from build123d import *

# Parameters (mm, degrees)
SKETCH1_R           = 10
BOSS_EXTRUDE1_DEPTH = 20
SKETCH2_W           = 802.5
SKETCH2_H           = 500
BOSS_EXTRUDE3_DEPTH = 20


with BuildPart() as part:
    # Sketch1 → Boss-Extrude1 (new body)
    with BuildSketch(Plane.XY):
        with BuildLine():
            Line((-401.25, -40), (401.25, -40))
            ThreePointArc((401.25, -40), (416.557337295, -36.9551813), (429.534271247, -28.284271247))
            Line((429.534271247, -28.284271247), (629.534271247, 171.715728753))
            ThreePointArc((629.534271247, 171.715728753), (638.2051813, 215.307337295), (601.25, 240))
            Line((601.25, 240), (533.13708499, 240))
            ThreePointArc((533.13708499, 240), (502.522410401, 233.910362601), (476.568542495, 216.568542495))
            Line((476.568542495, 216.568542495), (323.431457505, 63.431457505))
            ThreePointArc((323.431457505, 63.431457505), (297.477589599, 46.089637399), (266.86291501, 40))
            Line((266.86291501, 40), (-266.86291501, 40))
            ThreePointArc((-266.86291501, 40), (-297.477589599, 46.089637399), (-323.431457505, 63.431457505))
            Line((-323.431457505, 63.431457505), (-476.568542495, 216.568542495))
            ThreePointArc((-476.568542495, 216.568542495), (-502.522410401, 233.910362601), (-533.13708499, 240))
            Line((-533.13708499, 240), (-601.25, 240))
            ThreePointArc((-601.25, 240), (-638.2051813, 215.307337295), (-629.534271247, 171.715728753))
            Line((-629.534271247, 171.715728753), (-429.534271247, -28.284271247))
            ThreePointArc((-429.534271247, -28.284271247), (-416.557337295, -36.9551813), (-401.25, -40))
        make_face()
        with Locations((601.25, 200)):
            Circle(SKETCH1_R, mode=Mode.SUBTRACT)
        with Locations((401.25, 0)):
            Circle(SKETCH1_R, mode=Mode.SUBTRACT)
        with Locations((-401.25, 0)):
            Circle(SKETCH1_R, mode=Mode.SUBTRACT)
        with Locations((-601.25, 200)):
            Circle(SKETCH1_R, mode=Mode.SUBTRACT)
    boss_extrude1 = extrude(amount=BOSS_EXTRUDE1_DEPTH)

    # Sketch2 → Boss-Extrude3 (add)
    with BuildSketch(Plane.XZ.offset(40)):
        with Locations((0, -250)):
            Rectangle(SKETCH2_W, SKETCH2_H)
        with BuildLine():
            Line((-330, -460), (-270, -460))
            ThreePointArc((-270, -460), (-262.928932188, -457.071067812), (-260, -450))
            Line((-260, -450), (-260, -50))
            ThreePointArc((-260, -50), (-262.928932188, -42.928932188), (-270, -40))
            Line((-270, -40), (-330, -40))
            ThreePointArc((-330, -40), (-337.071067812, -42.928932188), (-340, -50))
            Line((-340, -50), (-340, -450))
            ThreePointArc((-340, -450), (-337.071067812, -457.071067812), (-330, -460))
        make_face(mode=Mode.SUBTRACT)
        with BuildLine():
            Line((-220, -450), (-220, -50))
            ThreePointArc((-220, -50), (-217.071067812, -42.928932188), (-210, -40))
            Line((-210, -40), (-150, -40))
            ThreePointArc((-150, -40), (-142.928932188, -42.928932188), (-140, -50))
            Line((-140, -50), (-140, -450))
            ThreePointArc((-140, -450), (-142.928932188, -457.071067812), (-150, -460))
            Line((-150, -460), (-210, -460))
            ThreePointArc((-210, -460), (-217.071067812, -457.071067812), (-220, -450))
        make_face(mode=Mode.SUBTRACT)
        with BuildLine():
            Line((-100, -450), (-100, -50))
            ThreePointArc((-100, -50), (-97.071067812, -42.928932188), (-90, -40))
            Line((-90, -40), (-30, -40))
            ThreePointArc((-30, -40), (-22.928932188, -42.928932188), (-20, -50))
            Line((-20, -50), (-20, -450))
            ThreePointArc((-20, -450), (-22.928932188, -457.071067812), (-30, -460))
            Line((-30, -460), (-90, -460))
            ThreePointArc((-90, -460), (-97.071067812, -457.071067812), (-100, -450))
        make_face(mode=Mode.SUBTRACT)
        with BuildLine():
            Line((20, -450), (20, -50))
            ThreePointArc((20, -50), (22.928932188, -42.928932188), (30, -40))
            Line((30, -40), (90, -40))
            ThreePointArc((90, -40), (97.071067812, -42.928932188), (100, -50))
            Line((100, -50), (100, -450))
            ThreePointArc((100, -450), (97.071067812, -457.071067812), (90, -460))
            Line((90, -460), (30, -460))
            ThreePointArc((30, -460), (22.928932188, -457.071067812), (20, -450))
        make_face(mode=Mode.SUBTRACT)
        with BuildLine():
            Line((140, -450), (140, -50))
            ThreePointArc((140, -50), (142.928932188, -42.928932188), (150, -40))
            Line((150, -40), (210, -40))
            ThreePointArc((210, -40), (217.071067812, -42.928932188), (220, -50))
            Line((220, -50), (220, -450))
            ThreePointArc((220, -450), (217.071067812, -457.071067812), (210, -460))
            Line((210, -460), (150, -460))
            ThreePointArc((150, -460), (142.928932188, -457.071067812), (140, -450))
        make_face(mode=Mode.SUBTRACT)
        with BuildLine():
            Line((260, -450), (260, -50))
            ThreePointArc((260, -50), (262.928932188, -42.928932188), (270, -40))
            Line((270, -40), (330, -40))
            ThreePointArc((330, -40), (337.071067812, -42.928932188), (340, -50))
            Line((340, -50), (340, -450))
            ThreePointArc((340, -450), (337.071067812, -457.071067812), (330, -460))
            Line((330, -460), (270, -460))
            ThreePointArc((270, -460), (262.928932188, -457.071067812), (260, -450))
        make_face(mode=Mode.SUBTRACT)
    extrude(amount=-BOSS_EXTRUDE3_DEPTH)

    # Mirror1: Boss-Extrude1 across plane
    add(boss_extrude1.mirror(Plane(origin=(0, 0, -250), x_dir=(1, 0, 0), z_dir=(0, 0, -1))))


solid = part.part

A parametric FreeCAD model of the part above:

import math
import FreeCAD as App
import Part
import Sketcher

V = App.Vector
Q = App.Units.Quantity


def add_polygon(sketch, points):
    """Adds a closed chain of lines whose ends are joined by coincident constraints."""
    first, n = sketch.GeometryCount, len(points)
    for a, b in zip(points, points[1:] + points[:1]):
        sketch.addGeometry(Part.LineSegment(App.Vector(*a, 0), App.Vector(*b, 0)), False)
    for i in range(n):
        sketch.addConstraint(Sketcher.Constraint("Coincident", first + i, 2, first + (i + 1) % n, 1))

doc = App.newDocument("Part")
body = doc.addObject("PartDesign::Body", "Body")

# Sketch on XY plane
sketch1 = body.newObject("Sketcher::SketchObject", "Sketch")
sketch1.AttachmentSupport = (doc.getObject("XY_Plane"), [""])
sketch1.MapMode = "FlatFace"
sketch1.addGeometry([
    Part.LineSegment(V(-401, -40, 0), V(401, -40, 0)),  # 0
    Part.ArcOfCircle(Part.Circle(V(401, 0, 0), V(0, 0, 1), 40), math.radians(-90), math.radians(-45)),  # 1
    Part.LineSegment(V(430, -28, 0), V(630, 172, 0)),  # 2
    Part.ArcOfCircle(Part.Circle(V(601, 200, 0), V(0, 0, 1), 40), math.radians(-45), math.radians(90)),  # 3
    Part.LineSegment(V(601, 240, 0), V(533, 240, 0)),  # 4
    Part.ArcOfCircle(Part.Circle(V(533, 160, 0), V(0, 0, 1), 80), math.radians(90), math.radians(135)),  # 5
    Part.LineSegment(V(477, 217, 0), V(323, 63, 0)),  # 6
    Part.ArcOfCircle(Part.Circle(V(267, 120, 0), V(0, 0, 1), 80), math.radians(-90), math.radians(-45)),  # 7
    Part.LineSegment(V(267, 40, 0), V(-267, 40, 0)),  # 8
    Part.ArcOfCircle(Part.Circle(V(-267, 120, 0), V(0, 0, 1), 80), math.radians(-135), math.radians(-90)),  # 9
    Part.LineSegment(V(-323, 63, 0), V(-477, 217, 0)),  # 10
    Part.ArcOfCircle(Part.Circle(V(-533, 160, 0), V(0, 0, 1), 80), math.radians(45), math.radians(90)),  # 11
    Part.LineSegment(V(-533, 240, 0), V(-601, 240, 0)),  # 12
    Part.ArcOfCircle(Part.Circle(V(-601, 200, 0), V(0, 0, 1), 40), math.radians(90), math.radians(225)),  # 13
    Part.LineSegment(V(-630, 172, 0), V(-430, -28, 0)),  # 14
    Part.ArcOfCircle(Part.Circle(V(-401, 0, 0), V(0, 0, 1), 40), math.radians(-135), math.radians(-90)),  # 15
    Part.Circle(V(-401, 0, 0), V(0, 0, 1), 10),  # 16
    Part.Circle(V(401, 0, 0), V(0, 0, 1), 10),  # 17
    Part.Circle(V(-601, 200, 0), V(0, 0, 1), 10),  # 18
    Part.Circle(V(601, 200, 0), V(0, 0, 1), 10),  # 19
], False)
sketch1.addConstraint([
    Sketcher.Constraint("Tangent", 0, 2, 1, 1),
    Sketcher.Constraint("Tangent", 1, 2, 2, 1),
    Sketcher.Constraint("Tangent", 2, 2, 3, 1),
    Sketcher.Constraint("Tangent", 3, 2, 4, 1),
    Sketcher.Constraint("Tangent", 4, 2, 5, 1),
    Sketcher.Constraint("Tangent", 5, 2, 6, 1),
    Sketcher.Constraint("Tangent", 6, 2, 7, 2),
    Sketcher.Constraint("Tangent", 7, 1, 8, 1),
    Sketcher.Constraint("Tangent", 8, 2, 9, 2),
    Sketcher.Constraint("Tangent", 9, 1, 10, 1),
    Sketcher.Constraint("Tangent", 10, 2, 11, 1),
    Sketcher.Constraint("Tangent", 11, 2, 12, 1),
    Sketcher.Constraint("Tangent", 12, 2, 13, 1),
    Sketcher.Constraint("Tangent", 13, 2, 14, 1),
    Sketcher.Constraint("Tangent", 14, 2, 15, 1),
    Sketcher.Constraint("Tangent", 15, 2, 0, 1),
    Sketcher.Constraint("Horizontal", 0),
    Sketcher.Constraint("Horizontal", 4),
    Sketcher.Constraint("Horizontal", 8),
    Sketcher.Constraint("Horizontal", 12),
    Sketcher.Constraint("Coincident", 16, 3, 15, 3),
    Sketcher.Constraint("Coincident", 17, 3, 1, 3),
    Sketcher.Constraint("Coincident", 18, 3, 13, 3),
    Sketcher.Constraint("Coincident", 19, 3, 3, 3),
    Sketcher.Constraint("Equal", 1, 3),
    Sketcher.Constraint("Equal", 5, 7),
    Sketcher.Constraint("Equal", 7, 9),
    Sketcher.Constraint("Equal", 9, 11),
    Sketcher.Constraint("Equal", 3, 13),
    Sketcher.Constraint("Equal", 13, 15),
    Sketcher.Constraint("Equal", 16, 17),
    Sketcher.Constraint("Equal", 17, 18),
    Sketcher.Constraint("Equal", 18, 19),
    Sketcher.Constraint("Symmetric", 1, 3, 15, 3, -1, 1),
    Sketcher.Constraint("Symmetric", 5, 3, 11, 3, -2),
    Sketcher.Constraint("Parallel", 2, 6),
    Sketcher.Constraint("Perpendicular", 6, 10),
    Sketcher.Constraint("Parallel", 10, 14),
    Sketcher.Constraint("Equal", 4, 12),
    Sketcher.Constraint("Diameter", 16, Q("20 mm")),
    Sketcher.Constraint("Radius", 1, Q("40 mm")),
    Sketcher.Constraint("Radius", 5, Q("80 mm")),
    Sketcher.Constraint("DistanceX", 0, 1, 0, 2, Q("802.5 mm")),
    Sketcher.Constraint("DistanceY", -1, 1, 3, 3, Q("200 mm")),
    Sketcher.Constraint("DistanceY", -1, 1, 7, 3, Q("120 mm")),
    Sketcher.Constraint("DistanceX", 9, 3, 5, 3, Q("800 mm")),
])
pad1 = body.newObject("PartDesign::Pad", "Pad")
pad1.Profile = sketch1
pad1.Length = 20

# Sketch on XZ plane
sketch2 = body.newObject("Sketcher::SketchObject", "Sketch001")
sketch2.AttachmentSupport = (doc.getObject("XZ_Plane"), [""])
sketch2.MapMode = "FlatFace"
sketch2.AttachmentOffset = App.Placement(V(0, 0, 40), App.Rotation())
add_polygon(sketch2, [(-401, 0), (-401, -500), (401, -500), (401, 0)])  # lines 0-3
sketch2.addGeometry(Part.LineSegment(V(-270, -460, 0), V(-330, -460, 0)), False)  # 4
sketch2.addGeometry(Part.ArcOfCircle(Part.Circle(V(-330, -450, 0), V(0, 0, 1), 10), math.radians(180), math.radians(270)), False)  # 5
sketch2.addGeometry(Part.LineSegment(V(-340, -450, 0), V(-340, -50, 0)), False)  # 6
sketch2.addGeometry(Part.ArcOfCircle(Part.Circle(V(-330, -50, 0), V(0, 0, 1), 10), math.radians(90), math.radians(180)), False)  # 7
sketch2.addGeometry(Part.LineSegment(V(-330, -40, 0), V(-270, -40, 0)), False)  # 8
sketch2.addGeometry(Part.ArcOfCircle(Part.Circle(V(-270, -50, 0), V(0, 0, 1), 10), math.radians(0), math.radians(90)), False)  # 9
sketch2.addGeometry(Part.LineSegment(V(-260, -50, 0), V(-260, -450, 0)), False)  # 10
sketch2.addGeometry(Part.ArcOfCircle(Part.Circle(V(-270, -450, 0), V(0, 0, 1), 10), math.radians(-90), math.radians(0)), False)  # 11
sketch2.addGeometry(Part.ArcOfCircle(Part.Circle(V(-210, -450, 0), V(0, 0, 1), 10), math.radians(180), math.radians(270)), False)  # 12
sketch2.addGeometry(Part.LineSegment(V(-220, -450, 0), V(-220, -50, 0)), False)  # 13
sketch2.addGeometry(Part.ArcOfCircle(Part.Circle(V(-210, -50, 0), V(0, 0, 1), 10), math.radians(90), math.radians(180)), False)  # 14
sketch2.addGeometry(Part.LineSegment(V(-210, -40, 0), V(-150, -40, 0)), False)  # 15
sketch2.addGeometry(Part.ArcOfCircle(Part.Circle(V(-150, -50, 0), V(0, 0, 1), 10), math.radians(0), math.radians(90)), False)  # 16
sketch2.addGeometry(Part.LineSegment(V(-140, -50, 0), V(-140, -450, 0)), False)  # 17
sketch2.addGeometry(Part.ArcOfCircle(Part.Circle(V(-150, -450, 0), V(0, 0, 1), 10), math.radians(-90), math.radians(0)), False)  # 18
sketch2.addGeometry(Part.LineSegment(V(-150, -460, 0), V(-210, -460, 0)), False)  # 19
sketch2.addGeometry(Part.ArcOfCircle(Part.Circle(V(-90, -450, 0), V(0, 0, 1), 10), math.radians(180), math.radians(270)), False)  # 20
sketch2.addGeometry(Part.LineSegment(V(-100, -450, 0), V(-100, -50, 0)), False)  # 21
sketch2.addGeometry(Part.ArcOfCircle(Part.Circle(V(-90, -50, 0), V(0, 0, 1), 10), math.radians(90), math.radians(180)), False)  # 22
sketch2.addGeometry(Part.LineSegment(V(-90, -40, 0), V(-30, -40, 0)), False)  # 23
sketch2.addGeometry(Part.ArcOfCircle(Part.Circle(V(-30, -50, 0), V(0, 0, 1), 10), math.radians(0), math.radians(90)), False)  # 24
sketch2.addGeometry(Part.LineSegment(V(-20, -50, 0), V(-20, -450, 0)), False)  # 25
sketch2.addGeometry(Part.ArcOfCircle(Part.Circle(V(-30, -450, 0), V(0, 0, 1), 10), math.radians(-90), math.radians(0)), False)  # 26
sketch2.addGeometry(Part.LineSegment(V(-30, -460, 0), V(-90, -460, 0)), False)  # 27
sketch2.addGeometry(Part.ArcOfCircle(Part.Circle(V(30, -450, 0), V(0, 0, 1), 10), math.radians(180), math.radians(270)), False)  # 28
sketch2.addGeometry(Part.LineSegment(V(20, -450, 0), V(20, -50, 0)), False)  # 29
sketch2.addGeometry(Part.ArcOfCircle(Part.Circle(V(30, -50, 0), V(0, 0, 1), 10), math.radians(90), math.radians(180)), False)  # 30
sketch2.addGeometry(Part.LineSegment(V(30, -40, 0), V(90, -40, 0)), False)  # 31
sketch2.addGeometry(Part.ArcOfCircle(Part.Circle(V(90, -50, 0), V(0, 0, 1), 10), math.radians(0), math.radians(90)), False)  # 32
sketch2.addGeometry(Part.LineSegment(V(100, -50, 0), V(100, -450, 0)), False)  # 33
sketch2.addGeometry(Part.ArcOfCircle(Part.Circle(V(90, -450, 0), V(0, 0, 1), 10), math.radians(-90), math.radians(0)), False)  # 34
sketch2.addGeometry(Part.LineSegment(V(90, -460, 0), V(30, -460, 0)), False)  # 35
sketch2.addGeometry(Part.ArcOfCircle(Part.Circle(V(150, -450, 0), V(0, 0, 1), 10), math.radians(180), math.radians(270)), False)  # 36
sketch2.addGeometry(Part.LineSegment(V(140, -450, 0), V(140, -50, 0)), False)  # 37
sketch2.addGeometry(Part.ArcOfCircle(Part.Circle(V(150, -50, 0), V(0, 0, 1), 10), math.radians(90), math.radians(180)), False)  # 38
sketch2.addGeometry(Part.LineSegment(V(150, -40, 0), V(210, -40, 0)), False)  # 39
sketch2.addGeometry(Part.ArcOfCircle(Part.Circle(V(210, -50, 0), V(0, 0, 1), 10), math.radians(0), math.radians(90)), False)  # 40
sketch2.addGeometry(Part.LineSegment(V(220, -50, 0), V(220, -450, 0)), False)  # 41
sketch2.addGeometry(Part.ArcOfCircle(Part.Circle(V(210, -450, 0), V(0, 0, 1), 10), math.radians(-90), math.radians(0)), False)  # 42
sketch2.addGeometry(Part.LineSegment(V(210, -460, 0), V(150, -460, 0)), False)  # 43
sketch2.addGeometry(Part.ArcOfCircle(Part.Circle(V(270, -450, 0), V(0, 0, 1), 10), math.radians(180), math.radians(270)), False)  # 44
sketch2.addGeometry(Part.LineSegment(V(260, -450, 0), V(260, -50, 0)), False)  # 45
sketch2.addGeometry(Part.ArcOfCircle(Part.Circle(V(270, -50, 0), V(0, 0, 1), 10), math.radians(90), math.radians(180)), False)  # 46
sketch2.addGeometry(Part.LineSegment(V(270, -40, 0), V(330, -40, 0)), False)  # 47
sketch2.addGeometry(Part.ArcOfCircle(Part.Circle(V(330, -50, 0), V(0, 0, 1), 10), math.radians(0), math.radians(90)), False)  # 48
sketch2.addGeometry(Part.LineSegment(V(340, -50, 0), V(340, -450, 0)), False)  # 49
sketch2.addGeometry(Part.ArcOfCircle(Part.Circle(V(330, -450, 0), V(0, 0, 1), 10), math.radians(-90), math.radians(0)), False)  # 50
sketch2.addGeometry(Part.LineSegment(V(330, -460, 0), V(270, -460, 0)), False)  # 51
sketch2.addConstraint([
    Sketcher.Constraint("Tangent", 4, 2, 5, 2),
    Sketcher.Constraint("Tangent", 5, 1, 6, 1),
    Sketcher.Constraint("Tangent", 6, 2, 7, 2),
    Sketcher.Constraint("Tangent", 7, 1, 8, 1),
    Sketcher.Constraint("Tangent", 8, 2, 9, 2),
    Sketcher.Constraint("Tangent", 9, 1, 10, 1),
    Sketcher.Constraint("Tangent", 10, 2, 11, 2),
    Sketcher.Constraint("Tangent", 11, 1, 4, 1),
    Sketcher.Constraint("Tangent", 12, 1, 13, 1),
    Sketcher.Constraint("Tangent", 13, 2, 14, 2),
    Sketcher.Constraint("Tangent", 14, 1, 15, 1),
    Sketcher.Constraint("Tangent", 15, 2, 16, 2),
    Sketcher.Constraint("Tangent", 16, 1, 17, 1),
    Sketcher.Constraint("Tangent", 17, 2, 18, 2),
    Sketcher.Constraint("Tangent", 18, 1, 19, 1),
    Sketcher.Constraint("Tangent", 19, 2, 12, 2),
    Sketcher.Constraint("Tangent", 20, 1, 21, 1),
    Sketcher.Constraint("Tangent", 21, 2, 22, 2),
    Sketcher.Constraint("Tangent", 22, 1, 23, 1),
    Sketcher.Constraint("Tangent", 23, 2, 24, 2),
    Sketcher.Constraint("Tangent", 24, 1, 25, 1),
    Sketcher.Constraint("Tangent", 25, 2, 26, 2),
    Sketcher.Constraint("Tangent", 26, 1, 27, 1),
    Sketcher.Constraint("Tangent", 27, 2, 20, 2),
    Sketcher.Constraint("Tangent", 28, 1, 29, 1),
    Sketcher.Constraint("Tangent", 29, 2, 30, 2),
    Sketcher.Constraint("Tangent", 30, 1, 31, 1),
    Sketcher.Constraint("Tangent", 31, 2, 32, 2),
    Sketcher.Constraint("Tangent", 32, 1, 33, 1),
    Sketcher.Constraint("Tangent", 33, 2, 34, 2),
    Sketcher.Constraint("Tangent", 34, 1, 35, 1),
    Sketcher.Constraint("Tangent", 35, 2, 28, 2),
    Sketcher.Constraint("Tangent", 36, 1, 37, 1),
    Sketcher.Constraint("Tangent", 37, 2, 38, 2),
    Sketcher.Constraint("Tangent", 38, 1, 39, 1),
    Sketcher.Constraint("Tangent", 39, 2, 40, 2),
    Sketcher.Constraint("Tangent", 40, 1, 41, 1),
    Sketcher.Constraint("Tangent", 41, 2, 42, 2),
    Sketcher.Constraint("Tangent", 42, 1, 43, 1),
    Sketcher.Constraint("Tangent", 43, 2, 36, 2),
    Sketcher.Constraint("Tangent", 44, 1, 45, 1),
    Sketcher.Constraint("Tangent", 45, 2, 46, 2),
    Sketcher.Constraint("Tangent", 46, 1, 47, 1),
    Sketcher.Constraint("Tangent", 47, 2, 48, 2),
    Sketcher.Constraint("Tangent", 48, 1, 49, 1),
    Sketcher.Constraint("Tangent", 49, 2, 50, 2),
    Sketcher.Constraint("Tangent", 50, 1, 51, 1),
    Sketcher.Constraint("Tangent", 51, 2, 44, 2),
    Sketcher.Constraint("Vertical", 0),
    Sketcher.Constraint("Horizontal", 1),
    Sketcher.Constraint("Vertical", 2),
    Sketcher.Constraint("Horizontal", 3),
    Sketcher.Constraint("Horizontal", 4),
    Sketcher.Constraint("Vertical", 6),
    Sketcher.Constraint("Horizontal", 8),
    Sketcher.Constraint("Vertical", 10),
    Sketcher.Constraint("Vertical", 13),
    Sketcher.Constraint("Horizontal", 15),
    Sketcher.Constraint("Vertical", 17),
    Sketcher.Constraint("Horizontal", 19),
    Sketcher.Constraint("Vertical", 21),
    Sketcher.Constraint("Horizontal", 23),
    Sketcher.Constraint("Vertical", 25),
    Sketcher.Constraint("Horizontal", 27),
    Sketcher.Constraint("Vertical", 29),
    Sketcher.Constraint("Horizontal", 31),
    Sketcher.Constraint("Vertical", 33),
    Sketcher.Constraint("Horizontal", 35),
    Sketcher.Constraint("Vertical", 37),
    Sketcher.Constraint("Horizontal", 39),
    Sketcher.Constraint("Vertical", 41),
    Sketcher.Constraint("Horizontal", 43),
    Sketcher.Constraint("Vertical", 45),
    Sketcher.Constraint("Horizontal", 47),
    Sketcher.Constraint("Vertical", 49),
    Sketcher.Constraint("Horizontal", 51),
    Sketcher.Constraint("Equal", 5, 7),
    Sketcher.Constraint("Equal", 7, 9),
    Sketcher.Constraint("Equal", 9, 11),
    Sketcher.Constraint("Equal", 11, 12),
    Sketcher.Constraint("Equal", 12, 14),
    Sketcher.Constraint("Equal", 14, 16),
    Sketcher.Constraint("Equal", 16, 18),
    Sketcher.Constraint("Equal", 18, 20),
    Sketcher.Constraint("Equal", 20, 22),
    Sketcher.Constraint("Equal", 22, 24),
    Sketcher.Constraint("Equal", 24, 26),
    Sketcher.Constraint("Equal", 26, 28),
    Sketcher.Constraint("Equal", 28, 30),
    Sketcher.Constraint("Equal", 30, 32),
    Sketcher.Constraint("Equal", 32, 34),
    Sketcher.Constraint("Equal", 34, 36),
    Sketcher.Constraint("Equal", 36, 38),
    Sketcher.Constraint("Equal", 38, 40),
    Sketcher.Constraint("Equal", 40, 42),
    Sketcher.Constraint("Equal", 42, 44),
    Sketcher.Constraint("Equal", 44, 46),
    Sketcher.Constraint("Equal", 46, 48),
    Sketcher.Constraint("Equal", 48, 50),
    Sketcher.Constraint("Symmetric", 2, 2, 3, 2, -1, 1),
    Sketcher.Constraint("Symmetric", 26, 3, 28, 3, -2),
    Sketcher.Constraint("Symmetric", 22, 3, 32, 3, -2),
    Sketcher.Constraint("Symmetric", 18, 3, 36, 3, -2),
    Sketcher.Constraint("Symmetric", 14, 3, 40, 3, -2),
    Sketcher.Constraint("Symmetric", 11, 3, 44, 3, -2),
    Sketcher.Constraint("Symmetric", 7, 3, 48, 3, -2),
    Sketcher.Constraint("Horizontal", 11, 3, 12, 3),
    Sketcher.Constraint("Horizontal", 9, 3, 14, 3),
    Sketcher.Constraint("Horizontal", 18, 3, 20, 3),
    Sketcher.Constraint("Horizontal", 16, 3, 22, 3),
    Sketcher.Constraint("Equal", 8, 15),
    Sketcher.Constraint("Equal", 19, 23),
    Sketcher.Constraint("Radius", 5, Q("10 mm")),
    Sketcher.Constraint("DistanceX", 4, 2, 4, 1, Q("60 mm")),
    Sketcher.Constraint("DistanceY", 0, 2, 0, 1, Q("500 mm")),
    Sketcher.Constraint("DistanceY", 6, 1, 6, 2, Q("400 mm")),
    Sketcher.Constraint("DistanceX", 1, 1, 1, 2, Q("802.5 mm")),
    Sketcher.Constraint("DistanceX", 5, 3, -1, 1, Q("330 mm")),
    Sketcher.Constraint("DistanceY", 5, 3, -1, 1, Q("450 mm")),
    Sketcher.Constraint("DistanceX", 12, 3, -1, 1, Q("210 mm")),
    Sketcher.Constraint("DistanceX", 20, 3, -1, 1, Q("90 mm")),
])
pad2 = body.newObject("PartDesign::Pad", "Pad001")
pad2.Profile = sketch2
pad2.Length = 20
pad2.Reversed = True
doc.recompute()

datumplane = body.newObject("PartDesign::Plane", "DatumPlane")
datumplane.AttachmentSupport = (doc.getObject("XY_Plane"), [""])
datumplane.MapMode = "FlatFace"
datumplane.AttachmentOffset = App.Placement(V(0, 0, -250), App.Rotation())
mirrored = body.newObject("PartDesign::Mirrored", "Mirrored")
mirrored.Originals = [pad1]
mirrored.MirrorPlane = (datumplane, [""])
body.Tip = mirrored

doc.recompute()
